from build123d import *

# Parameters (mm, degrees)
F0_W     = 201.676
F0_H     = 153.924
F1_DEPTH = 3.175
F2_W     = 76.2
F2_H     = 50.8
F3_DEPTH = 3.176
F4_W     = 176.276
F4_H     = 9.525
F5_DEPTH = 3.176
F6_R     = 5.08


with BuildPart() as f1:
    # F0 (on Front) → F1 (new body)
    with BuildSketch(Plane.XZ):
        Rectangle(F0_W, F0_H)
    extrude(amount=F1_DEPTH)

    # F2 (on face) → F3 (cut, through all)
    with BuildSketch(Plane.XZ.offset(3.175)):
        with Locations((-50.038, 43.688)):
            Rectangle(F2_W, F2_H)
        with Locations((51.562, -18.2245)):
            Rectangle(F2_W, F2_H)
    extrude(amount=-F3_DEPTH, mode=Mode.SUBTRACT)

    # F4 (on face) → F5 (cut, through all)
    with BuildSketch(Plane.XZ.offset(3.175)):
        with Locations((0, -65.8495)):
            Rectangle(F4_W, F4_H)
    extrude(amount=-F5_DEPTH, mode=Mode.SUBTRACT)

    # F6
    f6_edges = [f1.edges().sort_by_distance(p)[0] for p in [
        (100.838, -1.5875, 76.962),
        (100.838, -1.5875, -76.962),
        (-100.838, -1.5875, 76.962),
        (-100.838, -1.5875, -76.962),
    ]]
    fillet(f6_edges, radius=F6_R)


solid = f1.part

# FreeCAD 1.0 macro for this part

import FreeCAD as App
import Part
import Sketcher
Q = App.Units.Quantity


def edges_at(feature, points):
    """Names of the edges that pass closest to the given points."""
    edges = feature.Shape.Edges
    near = lambda p: min(range(len(edges)), key=lambda i: edges[i].distToShape(Part.Vertex(*p))[0])
    return sorted({f"Edge{near(p) + 1}" for p in points})

doc = App.newDocument("Part")
body = doc.addObject("PartDesign::Body", "Body")

sketch1 = body.newObject("Sketcher::SketchObject", "Sketch")
sketch1.AttachmentSupport = (doc.getObject("XZ_Plane"), [""])
sketch1.MapMode = "FlatFace"
sketch1.addGeometry(Part.LineSegment(App.Vector(-101, 77, 0), App.Vector(-101, -77, 0)), False)
sketch1.addGeometry(Part.LineSegment(App.Vector(-101, -77, 0), App.Vector(101, -77, 0)), False)
sketch1.addGeometry(Part.LineSegment(App.Vector(101, -77, 0), App.Vector(101, 77, 0)), False)
sketch1.addGeometry(Part.LineSegment(App.Vector(101, 77, 0), App.Vector(-101, 77, 0)), False)
sketch1.addConstraint(Sketcher.Constraint("Coincident", 0, 2, 1, 1))
sketch1.addConstraint(Sketcher.Constraint("Coincident", 1, 2, 2, 1))
sketch1.addConstraint(Sketcher.Constraint("Coincident", 2, 2, 3, 1))
sketch1.addConstraint(Sketcher.Constraint("Coincident", 3, 2, 0, 1))
sketch1.addConstraint(Sketcher.Constraint("Vertical", 0))
sketch1.addConstraint(Sketcher.Constraint("Horizontal", 1))
sketch1.addConstraint(Sketcher.Constraint("Vertical", 2))
sketch1.addConstraint(Sketcher.Constraint("Horizontal", 3))
sketch1.addConstraint(Sketcher.Constraint("Symmetric", 0, 2, 2, 2, -1, 1))
sketch1.addConstraint(Sketcher.Constraint("DistanceX", 1, 1, 1, 2, Q("7.94 in")))
sketch1.addConstraint(Sketcher.Constraint("DistanceY", 0, 2, 0, 1, Q("6.06 in")))
pad1 = body.newObject("PartDesign::Pad", "Pad")
pad1.Profile = sketch1
pad1.Length = Q("0.125 in")

sketch2 = body.newObject("Sketcher::SketchObject", "Sketch001")
sketch2.AttachmentSupport = (doc.getObject("XZ_Plane"), [""])
sketch2.MapMode = "FlatFace"
sketch2.AttachmentOffset = App.Placement(App.Vector(0, 0, 0.125 * 25.4), App.Rotation())
sketch2.addGeometry(Part.LineSegment(App.Vector(-88, 69, 0), App.Vector(-88, 18, 0)), False)
sketch2.addGeometry(Part.LineSegment(App.Vector(-88, 18, 0), App.Vector(-12, 18, 0)), False)
sketch2.addGeometry(Part.LineSegment(App.Vector(-12, 18, 0), App.Vector(-12, 69, 0)), False)
sketch2.addGeometry(Part.LineSegment(App.Vector(-12, 69, 0), App.Vector(-88, 69, 0)), False)
sketch2.addGeometry(Part.LineSegment(App.Vector(13, 7, 0), App.Vector(13, -44, 0)), False)
sketch2.addGeometry(Part.LineSegment(App.Vector(13, -44, 0), App.Vector(90, -44, 0)), False)
sketch2.addGeometry(Part.LineSegment(App.Vector(90, -44, 0), App.Vector(90, 7, 0)), False)
sketch2.addGeometry(Part.LineSegment(App.Vector(90, 7, 0), App.Vector(13, 7, 0)), False)
sketch2.addConstraint(Sketcher.Constraint("Coincident", 0, 2, 1, 1))
sketch2.addConstraint(Sketcher.Constraint("Coincident", 1, 2, 2, 1))
sketch2.addConstraint(Sketcher.Constraint("Coincident", 2, 2, 3, 1))
sketch2.addConstraint(Sketcher.Constraint("Coincident", 3, 2, 0, 1))
sketch2.addConstraint(Sketcher.Constraint("Coincident", 4, 2, 5, 1))
sketch2.addConstraint(Sketcher.Constraint("Coincident", 5, 2, 6, 1))
sketch2.addConstraint(Sketcher.Constraint("Coincident", 6, 2, 7, 1))
sketch2.addConstraint(Sketcher.Constraint("Coincident", 7, 2, 4, 1))
sketch2.addConstraint(Sketcher.Constraint("Vertical", 0))
sketch2.addConstraint(Sketcher.Constraint("Horizontal", 1))
sketch2.addConstraint(Sketcher.Constraint("Vertical", 2))
sketch2.addConstraint(Sketcher.Constraint("Horizontal", 3))
sketch2.addConstraint(Sketcher.Constraint("Vertical", 4))
sketch2.addConstraint(Sketcher.Constraint("Horizontal", 5))
sketch2.addConstraint(Sketcher.Constraint("Vertical", 6))
sketch2.addConstraint(Sketcher.Constraint("Horizontal", 7))
sketch2.addConstraint(Sketcher.Constraint("Equal", 3, 5))
sketch2.addConstraint(Sketcher.Constraint("Equal", 2, 4))
sketch2.addConstraint(Sketcher.Constraint("DistanceX", 1, 1, 1, 2, Q("3 in")))
sketch2.addConstraint(Sketcher.Constraint("DistanceY", 0, 2, 0, 1, Q("2 in")))
sketch2.addConstraint(Sketcher.Constraint("DistanceX", 1, 2, 4, 2, Q("1 in")))
sketch2.addConstraint(Sketcher.Constraint("DistanceX", 0, 2, -1, 1, Q("3.47 in")))
sketch2.addConstraint(Sketcher.Constraint("DistanceY", -1, 1, 0, 2, Q("0.72 in")))
sketch2.addConstraint(Sketcher.Constraint("DistanceY", 4, 2, 1, 2, Q("2.4375 in")))
pocket1 = body.newObject("PartDesign::Pocket", "Pocket")
pocket1.Profile = sketch2
pocket1.Type = "ThroughAll"

sketch3 = body.newObject("Sketcher::SketchObject", "Sketch002")
sketch3.AttachmentSupport = (doc.getObject("XZ_Plane"), [""])
sketch3.MapMode = "FlatFace"
sketch3.AttachmentOffset = App.Placement(App.Vector(0, 0, 0.125 * 25.4), App.Rotation())
sketch3.addGeometry(Part.LineSegment(App.Vector(-88, -61, 0), App.Vector(-88, -71, 0)), False)
sketch3.addGeometry(Part.LineSegment(App.Vector(-88, -71, 0), App.Vector(88, -71, 0)), False)
sketch3.addGeometry(Part.LineSegment(App.Vector(88, -71, 0), App.Vector(88, -61, 0)), False)
sketch3.addGeometry(Part.LineSegment(App.Vector(88, -61, 0), App.Vector(-88, -61, 0)), False)
sketch3.addConstraint(Sketcher.Constraint("Coincident", 0, 2, 1, 1))
sketch3.addConstraint(Sketcher.Constraint("Coincident", 1, 2, 2, 1))
sketch3.addConstraint(Sketcher.Constraint("Coincident", 2, 2, 3, 1))
sketch3.addConstraint(Sketcher.Constraint("Coincident", 3, 2, 0, 1))
sketch3.addConstraint(Sketcher.Constraint("Vertical", 0))
sketch3.addConstraint(Sketcher.Constraint("Horizontal", 1))
sketch3.addConstraint(Sketcher.Constraint("Vertical", 2))
sketch3.addConstraint(Sketcher.Constraint("Horizontal", 3))
sketch3.addConstraint(Sketcher.Constraint("DistanceX", 1, 1, 1, 2, Q("6.94 in")))
sketch3.addConstraint(Sketcher.Constraint("DistanceY", 0, 2, 0, 1, Q("0.375 in")))
sketch3.addConstraint(Sketcher.Constraint("DistanceX", 0, 2, -1, 1, Q("3.47 in")))
sketch3.addConstraint(Sketcher.Constraint("DistanceY", 0, 2, -1, 1, Q("2.78 in")))
pocket2 = body.newObject("PartDesign::Pocket", "Pocket001")
pocket2.Profile = sketch3
pocket2.Type = "ThroughAll"
doc.recompute()

fillet = body.newObject("PartDesign::Fillet", "Fillet")
fillet.Base = (pocket2, edges_at(pocket2, [
    (100.838, -1.587, 76.962),
    (100.838, -1.587, -76.962),
    (-100.838, -1.587, 76.962),
    (-100.838, -1.587, -76.962),
]))
fillet.Radius = Q("0.2 in")

doc.recompute()
